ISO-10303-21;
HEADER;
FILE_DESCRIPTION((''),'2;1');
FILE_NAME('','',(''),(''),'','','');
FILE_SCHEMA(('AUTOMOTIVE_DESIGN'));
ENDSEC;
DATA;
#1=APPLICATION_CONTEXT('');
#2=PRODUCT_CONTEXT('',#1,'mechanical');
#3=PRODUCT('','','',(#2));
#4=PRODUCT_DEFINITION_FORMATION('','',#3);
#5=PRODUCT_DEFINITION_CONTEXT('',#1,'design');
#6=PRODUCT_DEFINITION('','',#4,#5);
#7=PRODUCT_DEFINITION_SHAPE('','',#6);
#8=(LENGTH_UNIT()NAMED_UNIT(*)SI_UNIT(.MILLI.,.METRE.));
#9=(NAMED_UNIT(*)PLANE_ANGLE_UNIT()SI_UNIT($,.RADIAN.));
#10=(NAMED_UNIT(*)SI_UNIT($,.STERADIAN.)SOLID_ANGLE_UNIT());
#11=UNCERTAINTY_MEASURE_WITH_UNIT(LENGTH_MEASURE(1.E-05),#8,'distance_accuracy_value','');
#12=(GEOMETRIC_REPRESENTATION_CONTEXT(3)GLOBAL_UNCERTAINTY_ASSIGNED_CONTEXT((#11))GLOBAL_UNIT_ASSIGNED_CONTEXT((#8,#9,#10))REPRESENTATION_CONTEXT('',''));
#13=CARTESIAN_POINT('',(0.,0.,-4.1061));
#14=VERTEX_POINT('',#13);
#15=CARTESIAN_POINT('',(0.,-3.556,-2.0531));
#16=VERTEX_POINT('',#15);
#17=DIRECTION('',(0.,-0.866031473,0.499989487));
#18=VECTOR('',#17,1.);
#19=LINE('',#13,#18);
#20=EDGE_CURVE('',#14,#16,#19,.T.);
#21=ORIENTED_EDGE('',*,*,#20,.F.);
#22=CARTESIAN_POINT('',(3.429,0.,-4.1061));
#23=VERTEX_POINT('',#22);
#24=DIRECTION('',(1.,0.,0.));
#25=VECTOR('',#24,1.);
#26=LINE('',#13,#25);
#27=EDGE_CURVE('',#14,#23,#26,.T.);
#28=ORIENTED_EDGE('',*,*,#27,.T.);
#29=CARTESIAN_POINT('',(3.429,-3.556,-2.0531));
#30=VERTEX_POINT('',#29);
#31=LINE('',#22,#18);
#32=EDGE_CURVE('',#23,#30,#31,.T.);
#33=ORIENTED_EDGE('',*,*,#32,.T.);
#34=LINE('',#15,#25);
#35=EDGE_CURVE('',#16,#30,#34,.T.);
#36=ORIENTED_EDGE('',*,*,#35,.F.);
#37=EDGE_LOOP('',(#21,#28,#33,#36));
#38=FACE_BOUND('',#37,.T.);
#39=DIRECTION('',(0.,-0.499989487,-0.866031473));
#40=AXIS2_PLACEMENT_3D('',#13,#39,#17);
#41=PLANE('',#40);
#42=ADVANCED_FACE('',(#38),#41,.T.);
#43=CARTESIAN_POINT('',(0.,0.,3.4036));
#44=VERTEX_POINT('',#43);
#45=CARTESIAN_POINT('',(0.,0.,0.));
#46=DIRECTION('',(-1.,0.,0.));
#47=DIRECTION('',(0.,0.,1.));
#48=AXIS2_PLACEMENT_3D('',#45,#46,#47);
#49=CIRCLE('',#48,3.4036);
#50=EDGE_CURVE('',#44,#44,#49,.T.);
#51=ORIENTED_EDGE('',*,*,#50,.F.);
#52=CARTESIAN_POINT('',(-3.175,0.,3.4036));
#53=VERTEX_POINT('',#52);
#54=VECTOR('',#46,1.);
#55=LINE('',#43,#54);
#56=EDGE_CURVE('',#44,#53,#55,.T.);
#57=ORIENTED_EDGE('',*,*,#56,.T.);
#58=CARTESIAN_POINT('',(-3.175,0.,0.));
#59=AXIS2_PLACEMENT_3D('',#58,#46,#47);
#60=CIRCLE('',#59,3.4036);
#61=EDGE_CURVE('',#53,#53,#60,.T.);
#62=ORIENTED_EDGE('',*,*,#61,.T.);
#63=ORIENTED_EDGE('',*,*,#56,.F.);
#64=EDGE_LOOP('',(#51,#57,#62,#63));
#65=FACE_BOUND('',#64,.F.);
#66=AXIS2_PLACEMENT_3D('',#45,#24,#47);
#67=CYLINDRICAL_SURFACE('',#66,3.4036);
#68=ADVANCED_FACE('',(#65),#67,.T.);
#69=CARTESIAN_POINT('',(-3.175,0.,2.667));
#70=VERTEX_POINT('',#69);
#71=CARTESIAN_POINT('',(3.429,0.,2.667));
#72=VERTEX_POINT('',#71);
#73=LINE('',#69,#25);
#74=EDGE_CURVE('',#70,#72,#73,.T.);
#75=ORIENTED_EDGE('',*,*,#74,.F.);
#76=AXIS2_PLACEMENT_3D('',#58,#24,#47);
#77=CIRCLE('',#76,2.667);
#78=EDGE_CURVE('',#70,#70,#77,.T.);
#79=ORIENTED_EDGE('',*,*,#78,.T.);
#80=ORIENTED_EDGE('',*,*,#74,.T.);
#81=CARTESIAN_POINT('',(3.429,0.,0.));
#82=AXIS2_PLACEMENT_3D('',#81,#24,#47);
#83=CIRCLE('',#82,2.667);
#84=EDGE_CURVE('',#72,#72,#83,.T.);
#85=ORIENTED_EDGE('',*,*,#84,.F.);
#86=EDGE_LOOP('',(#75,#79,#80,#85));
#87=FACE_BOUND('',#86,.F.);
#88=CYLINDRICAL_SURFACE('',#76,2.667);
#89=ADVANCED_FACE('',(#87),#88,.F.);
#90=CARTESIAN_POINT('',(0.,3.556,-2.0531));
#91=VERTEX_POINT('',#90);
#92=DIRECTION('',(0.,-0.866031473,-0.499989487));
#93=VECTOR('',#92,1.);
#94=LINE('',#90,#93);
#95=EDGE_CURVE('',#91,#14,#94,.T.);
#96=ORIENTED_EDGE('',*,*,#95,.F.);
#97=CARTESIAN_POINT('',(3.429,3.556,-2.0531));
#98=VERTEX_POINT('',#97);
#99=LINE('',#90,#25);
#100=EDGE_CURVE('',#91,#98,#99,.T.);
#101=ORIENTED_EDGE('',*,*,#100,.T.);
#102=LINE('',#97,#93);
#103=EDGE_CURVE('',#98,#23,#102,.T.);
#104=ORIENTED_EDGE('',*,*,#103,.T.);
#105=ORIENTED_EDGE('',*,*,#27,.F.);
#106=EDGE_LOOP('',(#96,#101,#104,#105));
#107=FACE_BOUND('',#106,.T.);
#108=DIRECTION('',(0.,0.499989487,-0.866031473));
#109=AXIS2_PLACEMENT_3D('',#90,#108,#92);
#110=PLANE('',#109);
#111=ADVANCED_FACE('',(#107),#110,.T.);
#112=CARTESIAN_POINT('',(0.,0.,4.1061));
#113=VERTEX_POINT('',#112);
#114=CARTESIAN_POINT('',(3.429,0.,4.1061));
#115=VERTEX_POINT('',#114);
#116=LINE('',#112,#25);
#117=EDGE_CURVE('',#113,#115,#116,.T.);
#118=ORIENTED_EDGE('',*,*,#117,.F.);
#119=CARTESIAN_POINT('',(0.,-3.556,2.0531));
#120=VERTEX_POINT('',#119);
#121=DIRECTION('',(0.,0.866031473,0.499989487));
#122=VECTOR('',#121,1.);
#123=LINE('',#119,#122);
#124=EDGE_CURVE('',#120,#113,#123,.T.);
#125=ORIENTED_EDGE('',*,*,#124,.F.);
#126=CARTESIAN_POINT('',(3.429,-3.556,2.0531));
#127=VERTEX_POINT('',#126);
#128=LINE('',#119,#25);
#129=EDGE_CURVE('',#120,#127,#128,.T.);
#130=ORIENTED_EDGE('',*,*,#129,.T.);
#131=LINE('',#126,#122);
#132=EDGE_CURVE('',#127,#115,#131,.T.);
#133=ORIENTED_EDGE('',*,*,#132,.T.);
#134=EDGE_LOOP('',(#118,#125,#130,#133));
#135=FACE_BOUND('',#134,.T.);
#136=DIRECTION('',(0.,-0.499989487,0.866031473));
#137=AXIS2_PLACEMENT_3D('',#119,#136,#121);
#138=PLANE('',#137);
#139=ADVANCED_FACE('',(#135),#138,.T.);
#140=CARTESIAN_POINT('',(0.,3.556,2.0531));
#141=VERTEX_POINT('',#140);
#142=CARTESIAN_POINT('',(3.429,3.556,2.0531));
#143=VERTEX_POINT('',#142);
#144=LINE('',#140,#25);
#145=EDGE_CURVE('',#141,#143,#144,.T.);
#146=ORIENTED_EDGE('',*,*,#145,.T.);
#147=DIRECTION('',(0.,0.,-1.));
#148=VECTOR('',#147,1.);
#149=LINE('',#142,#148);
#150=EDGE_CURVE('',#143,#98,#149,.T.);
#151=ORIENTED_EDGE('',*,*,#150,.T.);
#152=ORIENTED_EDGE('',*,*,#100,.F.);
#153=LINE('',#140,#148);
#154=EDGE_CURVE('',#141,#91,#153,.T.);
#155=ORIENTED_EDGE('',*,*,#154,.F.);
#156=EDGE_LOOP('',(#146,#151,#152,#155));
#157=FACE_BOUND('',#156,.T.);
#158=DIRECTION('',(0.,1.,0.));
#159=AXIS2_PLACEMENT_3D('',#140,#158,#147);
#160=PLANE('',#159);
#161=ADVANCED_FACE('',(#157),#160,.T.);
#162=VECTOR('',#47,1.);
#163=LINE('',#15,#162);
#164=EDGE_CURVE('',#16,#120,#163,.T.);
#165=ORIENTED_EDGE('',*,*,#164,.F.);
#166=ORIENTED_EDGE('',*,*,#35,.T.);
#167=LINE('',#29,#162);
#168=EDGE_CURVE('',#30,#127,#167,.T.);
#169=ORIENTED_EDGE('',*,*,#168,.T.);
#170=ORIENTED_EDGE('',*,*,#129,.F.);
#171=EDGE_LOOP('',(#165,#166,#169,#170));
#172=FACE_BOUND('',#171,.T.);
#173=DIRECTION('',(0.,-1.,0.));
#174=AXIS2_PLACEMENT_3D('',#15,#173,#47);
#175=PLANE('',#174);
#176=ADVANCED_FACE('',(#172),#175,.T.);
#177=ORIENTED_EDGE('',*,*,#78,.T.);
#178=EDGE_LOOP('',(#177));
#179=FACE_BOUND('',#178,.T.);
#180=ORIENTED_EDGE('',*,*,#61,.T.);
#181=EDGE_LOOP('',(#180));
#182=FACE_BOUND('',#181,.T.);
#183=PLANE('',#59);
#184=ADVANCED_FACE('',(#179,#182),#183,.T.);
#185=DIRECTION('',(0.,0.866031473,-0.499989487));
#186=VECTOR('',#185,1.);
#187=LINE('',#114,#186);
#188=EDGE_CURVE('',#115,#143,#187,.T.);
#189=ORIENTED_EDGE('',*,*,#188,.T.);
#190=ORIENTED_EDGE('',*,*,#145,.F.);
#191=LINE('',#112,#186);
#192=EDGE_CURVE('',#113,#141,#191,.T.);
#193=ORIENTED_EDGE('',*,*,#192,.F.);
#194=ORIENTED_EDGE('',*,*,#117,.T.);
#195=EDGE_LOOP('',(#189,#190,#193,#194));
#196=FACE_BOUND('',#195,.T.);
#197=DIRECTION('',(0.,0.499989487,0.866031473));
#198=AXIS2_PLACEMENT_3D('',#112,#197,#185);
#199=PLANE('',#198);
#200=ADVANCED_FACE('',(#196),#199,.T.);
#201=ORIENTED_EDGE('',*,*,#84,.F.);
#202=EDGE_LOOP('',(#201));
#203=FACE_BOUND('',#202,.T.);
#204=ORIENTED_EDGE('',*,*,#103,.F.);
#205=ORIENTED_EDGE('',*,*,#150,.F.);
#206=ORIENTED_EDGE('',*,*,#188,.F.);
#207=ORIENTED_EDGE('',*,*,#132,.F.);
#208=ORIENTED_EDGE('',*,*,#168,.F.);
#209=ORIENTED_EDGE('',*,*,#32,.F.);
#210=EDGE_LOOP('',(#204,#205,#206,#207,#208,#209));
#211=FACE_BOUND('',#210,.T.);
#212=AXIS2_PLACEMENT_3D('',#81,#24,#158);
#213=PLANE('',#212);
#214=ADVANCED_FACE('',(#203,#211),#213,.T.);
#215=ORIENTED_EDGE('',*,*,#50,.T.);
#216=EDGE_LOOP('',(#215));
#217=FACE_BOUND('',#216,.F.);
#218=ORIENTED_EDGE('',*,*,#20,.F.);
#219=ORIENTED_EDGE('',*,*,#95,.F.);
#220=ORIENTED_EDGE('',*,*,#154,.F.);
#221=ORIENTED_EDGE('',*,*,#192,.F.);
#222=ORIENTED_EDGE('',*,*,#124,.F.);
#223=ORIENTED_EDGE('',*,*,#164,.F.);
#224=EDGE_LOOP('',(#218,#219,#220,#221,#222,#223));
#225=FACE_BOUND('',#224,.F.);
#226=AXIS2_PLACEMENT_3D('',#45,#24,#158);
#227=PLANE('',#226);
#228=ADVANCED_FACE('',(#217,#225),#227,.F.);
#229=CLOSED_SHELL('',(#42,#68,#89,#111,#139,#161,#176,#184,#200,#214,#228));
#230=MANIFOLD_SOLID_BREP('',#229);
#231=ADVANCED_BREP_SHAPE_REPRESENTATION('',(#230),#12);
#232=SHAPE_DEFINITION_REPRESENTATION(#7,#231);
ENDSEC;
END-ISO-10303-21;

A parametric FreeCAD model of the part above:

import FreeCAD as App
import Part
import Sketcher
Q = App.Units.Quantity

doc = App.newDocument("Part")
body = doc.addObject("PartDesign::Body", "Body")

sketch1 = body.newObject("Sketcher::SketchObject", "Sketch")
sketch1.AttachmentSupport = (doc.getObject("YZ_Plane"), [""])
sketch1.MapMode = "FlatFace"
sketch1.addGeometry(Part.LineSegment(App.Vector(0, -4.1061, 0), App.Vector(3.556, -2.0531, 0)), False)
sketch1.addGeometry(Part.LineSegment(App.Vector(3.556, -2.0531, 0), App.Vector(3.556, 2.0531, 0)), False)
sketch1.addGeometry(Part.LineSegment(App.Vector(3.556, 2.0531, 0), App.Vector(0, 4.1061, 0)), False)
sketch1.addGeometry(Part.LineSegment(App.Vector(0, 4.1061, 0), App.Vector(-3.556, 2.0531, 0)), False)
sketch1.addGeometry(Part.LineSegment(App.Vector(-3.556, 2.0531, 0), App.Vector(-3.556, -2.0531, 0)), False)
sketch1.addGeometry(Part.LineSegment(App.Vector(-3.556, -2.0531, 0), App.Vector(0, -4.1061, 0)), False)
sketch1.addConstraint(Sketcher.Constraint("Coincident", 0, 2, 1, 1))
sketch1.addConstraint(Sketcher.Constraint("Coincident", 1, 2, 2, 1))
sketch1.addConstraint(Sketcher.Constraint("Coincident", 2, 2, 3, 1))
sketch1.addConstraint(Sketcher.Constraint("Coincident", 3, 2, 4, 1))
sketch1.addConstraint(Sketcher.Constraint("Coincident", 4, 2, 5, 1))
sketch1.addConstraint(Sketcher.Constraint("Coincident", 5, 2, 0, 1))
sketch1.addConstraint(Sketcher.Constraint("Vertical", 1))
sketch1.addConstraint(Sketcher.Constraint("Vertical", 4))
sketch1.addConstraint(Sketcher.Constraint("Symmetric", 0, 2, 3, 2, -1, 1))
sketch1.addConstraint(Sketcher.Constraint("Symmetric", 2, 2, 5, 2, -1, 1))
sketch1.addConstraint(Sketcher.Constraint("PointOnObject", 2, 2, -2))
sketch1.addConstraint(Sketcher.Constraint("Parallel", 2, 5))
sketch1.addConstraint(Sketcher.Constraint("Horizontal", 1, 2, 3, 2))
sketch1.addConstraint(Sketcher.Constraint("DistanceX", 3, 2, 1, 2, Q("0.28 in")))
sketch1.addConstraint(Sketcher.Constraint("Angle", 0, Q("29.9993 deg")))
sketch1.addConstraint(Sketcher.Constraint("DistanceY", 1, 1, 1, 2, 4.1062))
pad1 = body.newObject("PartDesign::Pad", "Pad")
pad1.Profile = sketch1
pad1.Length = Q("0.135 in")

sketch2 = body.newObject("Sketcher::SketchObject", "Sketch001")
sketch2.AttachmentSupport = (doc.getObject("YZ_Plane"), [""])
sketch2.MapMode = "FlatFace"
sketch2.addGeometry(Part.Circle(App.Vector(0, 0, 0), App.Vector(0, 0, 1), 3.4036), False)
sketch2.addConstraint(Sketcher.Constraint("Coincident", 0, 3, -1, 1))
sketch2.addConstraint(Sketcher.Constraint("Diameter", 0, Q("0.268 in")))
pad2 = body.newObject("PartDesign::Pad", "Pad001")
pad2.Profile = sketch2
pad2.Length = Q("0.125 in")
pad2.Reversed = True

sketch3 = body.newObject("Sketcher::SketchObject", "Sketch002")
sketch3.AttachmentSupport = (doc.getObject("YZ_Plane"), [""])
sketch3.MapMode = "FlatFace"
sketch3.AttachmentOffset = App.Placement(App.Vector(0, 0, -0.125 * 25.4), App.Rotation())
sketch3.addGeometry(Part.Circle(App.Vector(0, 0, 0), App.Vector(0, 0, 1), 2.667), False)
sketch3.addConstraint(Sketcher.Constraint("Coincident", 0, 3, -1, 1))
sketch3.addConstraint(Sketcher.Constraint("Diameter", 0, Q("0.21 in")))
doc.recompute()
hole = body.newObject("PartDesign::Hole", "Hole")
hole.Profile = sketch3
hole.ThreadType = "None"
hole.Diameter = Q("0.21 in")
hole.DepthType = "ThroughAll"
hole.Reversed = True

doc.recompute()
